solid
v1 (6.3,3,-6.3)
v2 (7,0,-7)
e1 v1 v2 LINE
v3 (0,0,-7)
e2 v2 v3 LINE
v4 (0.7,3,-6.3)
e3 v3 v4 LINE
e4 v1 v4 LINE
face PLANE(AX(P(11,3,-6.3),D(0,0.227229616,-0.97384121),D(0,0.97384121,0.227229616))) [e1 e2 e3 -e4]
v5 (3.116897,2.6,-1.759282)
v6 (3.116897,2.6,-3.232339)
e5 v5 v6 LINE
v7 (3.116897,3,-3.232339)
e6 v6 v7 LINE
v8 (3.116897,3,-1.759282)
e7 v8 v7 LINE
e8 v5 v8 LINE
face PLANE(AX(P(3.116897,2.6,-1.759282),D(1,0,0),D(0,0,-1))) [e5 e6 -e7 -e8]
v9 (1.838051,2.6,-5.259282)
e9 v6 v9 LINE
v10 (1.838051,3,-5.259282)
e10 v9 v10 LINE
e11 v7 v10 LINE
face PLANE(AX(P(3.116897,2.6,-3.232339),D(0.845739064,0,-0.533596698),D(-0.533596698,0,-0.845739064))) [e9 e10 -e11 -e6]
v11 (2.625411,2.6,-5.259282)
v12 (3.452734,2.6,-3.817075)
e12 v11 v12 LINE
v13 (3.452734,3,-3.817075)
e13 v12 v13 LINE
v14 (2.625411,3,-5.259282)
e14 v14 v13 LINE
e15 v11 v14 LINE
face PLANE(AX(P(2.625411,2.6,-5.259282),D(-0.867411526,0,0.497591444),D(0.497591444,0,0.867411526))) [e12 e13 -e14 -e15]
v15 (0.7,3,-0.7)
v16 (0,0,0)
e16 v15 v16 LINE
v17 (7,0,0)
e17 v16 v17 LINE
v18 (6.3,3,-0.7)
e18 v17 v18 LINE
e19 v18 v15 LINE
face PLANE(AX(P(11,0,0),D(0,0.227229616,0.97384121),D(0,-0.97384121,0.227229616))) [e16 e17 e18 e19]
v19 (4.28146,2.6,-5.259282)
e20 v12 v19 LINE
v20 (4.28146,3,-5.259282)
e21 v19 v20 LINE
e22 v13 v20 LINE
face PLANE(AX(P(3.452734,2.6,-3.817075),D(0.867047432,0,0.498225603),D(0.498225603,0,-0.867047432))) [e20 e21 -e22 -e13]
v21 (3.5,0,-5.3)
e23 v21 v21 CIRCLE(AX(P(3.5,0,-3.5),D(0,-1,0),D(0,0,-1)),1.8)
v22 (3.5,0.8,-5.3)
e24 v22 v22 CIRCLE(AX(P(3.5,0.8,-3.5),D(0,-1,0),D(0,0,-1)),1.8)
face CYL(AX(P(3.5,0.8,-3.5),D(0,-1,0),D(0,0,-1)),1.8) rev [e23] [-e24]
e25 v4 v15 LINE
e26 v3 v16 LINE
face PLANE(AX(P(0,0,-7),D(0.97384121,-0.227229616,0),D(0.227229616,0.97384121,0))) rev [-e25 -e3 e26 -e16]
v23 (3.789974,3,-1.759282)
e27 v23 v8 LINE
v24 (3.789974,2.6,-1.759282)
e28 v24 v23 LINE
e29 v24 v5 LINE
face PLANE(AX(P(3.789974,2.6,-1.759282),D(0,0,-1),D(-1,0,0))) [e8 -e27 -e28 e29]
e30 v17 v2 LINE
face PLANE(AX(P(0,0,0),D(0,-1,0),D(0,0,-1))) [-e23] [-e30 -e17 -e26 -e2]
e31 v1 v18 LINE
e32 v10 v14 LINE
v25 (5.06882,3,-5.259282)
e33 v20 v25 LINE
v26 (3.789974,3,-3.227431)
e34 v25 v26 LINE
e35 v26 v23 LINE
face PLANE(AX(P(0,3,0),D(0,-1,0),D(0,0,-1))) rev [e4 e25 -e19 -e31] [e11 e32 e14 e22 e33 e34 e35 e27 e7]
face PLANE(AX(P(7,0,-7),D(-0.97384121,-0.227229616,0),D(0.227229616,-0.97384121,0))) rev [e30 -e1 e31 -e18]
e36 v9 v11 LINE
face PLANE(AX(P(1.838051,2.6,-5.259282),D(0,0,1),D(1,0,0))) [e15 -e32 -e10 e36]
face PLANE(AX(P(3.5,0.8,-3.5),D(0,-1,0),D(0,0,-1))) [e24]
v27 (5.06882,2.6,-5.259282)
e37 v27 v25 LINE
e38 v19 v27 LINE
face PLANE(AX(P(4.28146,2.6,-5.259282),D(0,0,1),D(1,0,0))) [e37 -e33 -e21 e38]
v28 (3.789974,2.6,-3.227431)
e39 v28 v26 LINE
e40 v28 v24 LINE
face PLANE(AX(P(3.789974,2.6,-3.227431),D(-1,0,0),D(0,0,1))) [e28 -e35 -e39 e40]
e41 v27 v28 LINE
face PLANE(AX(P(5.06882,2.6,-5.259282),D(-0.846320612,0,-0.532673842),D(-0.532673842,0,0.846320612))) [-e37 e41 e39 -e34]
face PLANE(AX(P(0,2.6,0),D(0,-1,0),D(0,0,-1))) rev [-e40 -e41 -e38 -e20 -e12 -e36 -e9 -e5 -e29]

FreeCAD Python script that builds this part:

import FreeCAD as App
import Part
import Sketcher
from FreeCAD import Vector

doc = App.newDocument("Part")
params = doc.addObject("Spreadsheet::Sheet", "Params")
for row, (alias, value) in enumerate([
    ("sketch1_width", "7 mm"),
    ("pad1_length", "3 mm"),
    ("sketch2_height", "3 mm"),
    ("sketch2_width", "0.7 mm"),
    ("pocket1_length", "7 mm"),
    ("sketch3_width", "3 mm"),
    ("sketch3_height", "0.7 mm"),
    ("pocket2_length", "11 mm"),
    ("sketch4_diameter", "3.6 mm"),
    ("pocket3_length", "0.8 mm"),
    ("pocket4_length", "0.4 mm"),
], start=1):
    params.set(f"A{row}", alias)
    params.set(f"B{row}", "=" + value)
    params.setAlias(f"B{row}", alias)

body = doc.addObject("PartDesign::Body", "Body")

# Sketch on XZ plane
sketch1 = body.newObject("Sketcher::SketchObject", "Sketch")
sketch1.AttachmentSupport = (doc.getObject("XZ_Plane"), [""])
sketch1.MapMode = "FlatFace"
sketch1.addGeometry([
    Part.LineSegment(Vector(0, -7, 0), Vector(0, 0, 0)),
    Part.LineSegment(Vector(0, 0, 0), Vector(7, 0, 0)),
    Part.LineSegment(Vector(7, 0, 0), Vector(7, -7, 0)),
    Part.LineSegment(Vector(7, -7, 0), Vector(0, -7, 0)),
], False)
sketch1.addConstraint([
    Sketcher.Constraint("Coincident", 0, 2, 1, 1),
    Sketcher.Constraint("Coincident", 1, 2, 2, 1),
    Sketcher.Constraint("Coincident", 2, 2, 3, 1),
    Sketcher.Constraint("Coincident", 3, 2, 0, 1),
    Sketcher.Constraint("Vertical", 0),
    Sketcher.Constraint("Horizontal", 1),
    Sketcher.Constraint("Vertical", 2),
    Sketcher.Constraint("Horizontal", 3),
    Sketcher.Constraint("Coincident", 0, 2, -1, 1),
    Sketcher.Constraint("Equal", 3, 0),
    Sketcher.Constraint("DistanceX", 1, 1, 1, 2, 7.0),
])
sketch1.setExpression("Constraints[10]", "Params.sketch1_width")
pad1 = body.newObject("PartDesign::Pad", "Pad")
pad1.Profile = sketch1
pad1.setExpression("Length", "Params.pad1_length")
pad1.Reversed = True

# Sketch on XY plane
sketch2 = body.newObject("Sketcher::SketchObject", "Sketch001")
sketch2.AttachmentSupport = (doc.getObject("XY_Plane"), [""])
sketch2.MapMode = "FlatFace"
sketch2.addGeometry([
    Part.LineSegment(Vector(0, 0, 0), Vector(0.7, 3, 0)),  # 0
    Part.LineSegment(Vector(0.7, 3, 0), Vector(0, 3, 0)),  # 1
    Part.LineSegment(Vector(0, 3, 0), Vector(0, 0, 0)),  # 2
    Part.LineSegment(Vector(6.3, 3, 0), Vector(7, 0, 0)),  # 3
    Part.LineSegment(Vector(7, 0, 0), Vector(7, 3, 0)),  # 4
    Part.LineSegment(Vector(7, 3, 0), Vector(6.3, 3, 0)),  # 5
], False)
sketch2.addConstraint([
    Sketcher.Constraint("Coincident", 0, 2, 1, 1),
    Sketcher.Constraint("Coincident", 1, 2, 2, 1),
    Sketcher.Constraint("Coincident", 2, 2, 0, 1),
    Sketcher.Constraint("Coincident", 3, 2, 4, 1),
    Sketcher.Constraint("Coincident", 4, 2, 5, 1),
    Sketcher.Constraint("Coincident", 5, 2, 3, 1),
    Sketcher.Constraint("Horizontal", 1),
    Sketcher.Constraint("Vertical", 2),
    Sketcher.Constraint("Vertical", 4),
    Sketcher.Constraint("Horizontal", 5),
    Sketcher.Constraint("Coincident", 2, 2, -1, 1),
    Sketcher.Constraint("PointOnObject", 3, 2, -1),
    Sketcher.Constraint("Horizontal", 1, 2, 4, 2),
    Sketcher.Constraint("Equal", 1, 5),
    Sketcher.Constraint("DistanceY", 2, 2, 2, 1, 3.0),
    Sketcher.Constraint("DistanceX", 1, 2, 1, 1, 0.7),
    Sketcher.Constraint("DistanceX", -1, 1, 3, 2, 7.0),
])
sketch2.setExpression("Constraints[14]", "Params.sketch2_height")
sketch2.setExpression("Constraints[15]", "Params.sketch2_width")
pocket1 = body.newObject("PartDesign::Pocket", "Pocket")
pocket1.Profile = sketch2
pocket1.setExpression("Length", "Params.pocket1_length")

# Sketch on YZ plane
sketch3 = body.newObject("Sketcher::SketchObject", "Sketch002")
sketch3.AttachmentSupport = (doc.getObject("YZ_Plane"), [""])
sketch3.MapMode = "FlatFace"
sketch3.addGeometry([
    Part.LineSegment(Vector(0, 0, 0), Vector(3, -0.7, 0)),  # 0
    Part.LineSegment(Vector(3, -0.7, 0), Vector(3, 0, 0)),  # 1
    Part.LineSegment(Vector(3, 0, 0), Vector(0, 0, 0)),  # 2
    Part.LineSegment(Vector(3, -7, 0), Vector(3, -6.3, 0)),  # 3
    Part.LineSegment(Vector(3, -6.3, 0), Vector(0, -7, 0)),  # 4
    Part.LineSegment(Vector(0, -7, 0), Vector(3, -7, 0)),  # 5
], False)
sketch3.addConstraint([
    Sketcher.Constraint("Coincident", 0, 2, 1, 1),
    Sketcher.Constraint("Coincident", 1, 2, 2, 1),
    Sketcher.Constraint("Coincident", 2, 2, 0, 1),
    Sketcher.Constraint("Coincident", 3, 2, 4, 1),
    Sketcher.Constraint("Coincident", 4, 2, 5, 1),
    Sketcher.Constraint("Coincident", 5, 2, 3, 1),
    Sketcher.Constraint("Vertical", 1),
    Sketcher.Constraint("Horizontal", 2),
    Sketcher.Constraint("Vertical", 3),
    Sketcher.Constraint("Horizontal", 5),
    Sketcher.Constraint("Coincident", 2, 2, -1, 1),
    Sketcher.Constraint("PointOnObject", 4, 2, -2),
    Sketcher.Constraint("Vertical", 1, 2, 3, 2),
    Sketcher.Constraint("Equal", 1, 3),
    Sketcher.Constraint("DistanceX", 2, 2, 2, 1, 3.0),
    Sketcher.Constraint("DistanceY", 1, 1, 1, 2, 0.7),
    Sketcher.Constraint("DistanceY", 4, 2, -1, 1, 7.0),
])
sketch3.setExpression("Constraints[14]", "Params.sketch3_width")
sketch3.setExpression("Constraints[15]", "Params.sketch3_height")
pocket2 = body.newObject("PartDesign::Pocket", "Pocket001")
pocket2.Profile = sketch3
pocket2.setExpression("Length", "Params.pocket2_length")
pocket2.Reversed = True

# Sketch on XZ plane
sketch4 = body.newObject("Sketcher::SketchObject", "Sketch003")
sketch4.AttachmentSupport = (doc.getObject("XZ_Plane"), [""])
sketch4.MapMode = "FlatFace"
sketch4.addGeometry(Part.Circle(Vector(3.5, -3.5, 0), Vector(0, 0, 1), 1.8), False)
sketch4.addConstraint([
    Sketcher.Constraint("Diameter", 0, 3.6),
    Sketcher.Constraint("DistanceX", -1, 1, 0, 3, 3.5),
    Sketcher.Constraint("DistanceY", 0, 3, -1, 1, 3.5),
])
sketch4.setExpression("Constraints[0]", "Params.sketch4_diameter")
pocket3 = body.newObject("PartDesign::Pocket", "Pocket002")
pocket3.Profile = sketch4
pocket3.setExpression("Length", "Params.pocket3_length")

# Sketch on XZ plane
sketch5 = body.newObject("Sketcher::SketchObject", "Sketch004")
sketch5.AttachmentSupport = (doc.getObject("XZ_Plane"), [""])
sketch5.MapMode = "FlatFace"
sketch5.AttachmentOffset = App.Placement(Vector(0, 0, -3), App.Rotation())
sketch5.addGeometry([
    Part.LineSegment(Vector(3.116897, -3.232339, 0), Vector(3.116897, -1.759282, 0)),  # 0
    Part.LineSegment(Vector(3.116897, -1.759282, 0), Vector(3.789974, -1.759282, 0)),  # 1
    Part.LineSegment(Vector(3.789974, -1.759282, 0), Vector(3.789974, -3.227431, 0)),  # 2
    Part.LineSegment(Vector(3.789974, -3.227431, 0), Vector(5.06882, -5.259282, 0)),  # 3
    Part.LineSegment(Vector(5.06882, -5.259282, 0), Vector(4.28146, -5.259282, 0)),  # 4
    Part.LineSegment(Vector(4.28146, -5.259282, 0), Vector(3.452734, -3.817075, 0)),  # 5
    Part.LineSegment(Vector(3.452734, -3.817075, 0), Vector(2.625411, -5.259282, 0)),  # 6
    Part.LineSegment(Vector(2.625411, -5.259282, 0), Vector(1.838051, -5.259282, 0)),  # 7
    Part.LineSegment(Vector(1.838051, -5.259282, 0), Vector(3.116897, -3.232339, 0)),  # 8
], False)
sketch5.addConstraint([
    Sketcher.Constraint("Coincident", 0, 2, 1, 1),
    Sketcher.Constraint("Coincident", 1, 2, 2, 1),
    Sketcher.Constraint("Coincident", 2, 2, 3, 1),
    Sketcher.Constraint("Coincident", 3, 2, 4, 1),
    Sketcher.Constraint("Coincident", 4, 2, 5, 1),
    Sketcher.Constraint("Coincident", 5, 2, 6, 1),
    Sketcher.Constraint("Coincident", 6, 2, 7, 1),
    Sketcher.Constraint("Coincident", 7, 2, 8, 1),
    Sketcher.Constraint("Coincident", 8, 2, 0, 1),
    Sketcher.Constraint("Vertical", 0),
    Sketcher.Constraint("Horizontal", 1),
    Sketcher.Constraint("Vertical", 2),
    Sketcher.Constraint("Horizontal", 4),
    Sketcher.Constraint("Horizontal", 7),
    Sketcher.Constraint("Horizontal", 4, 2, 6, 2),
    Sketcher.Constraint("Equal", 4, 7),
    Sketcher.Constraint("DistanceY", 3, 2, 1, 2, 3.5),
    Sketcher.Constraint("DistanceX", 4, 2, 4, 1, 0.78736),
    Sketcher.Constraint("DistanceY", 2, 2, 2, 1, 1.468149),
    Sketcher.Constraint("DistanceX", 1, 1, 1, 2, 0.673077),
    Sketcher.Constraint("DistanceY", 0, 1, 0, 2, 1.473057),
    Sketcher.Constraint("DistanceY", 2, 2, -1, 1, 3.227431),
    Sketcher.Constraint("DistanceX", -1, 1, 3, 2, 5.06882),
    Sketcher.Constraint("DistanceX", -1, 1, 6, 2, 2.625411),
    Sketcher.Constraint("DistanceX", 5, 2, 2, 2, 0.33724),
    Sketcher.Constraint("Distance", 3, 2.400805),
    Sketcher.Constraint("Distance", 5, 1.663355),
])
pocket4 = body.newObject("PartDesign::Pocket", "Pocket003")
pocket4.Profile = sketch5
pocket4.setExpression("Length", "Params.pocket4_length")
pocket4.Reversed = True

doc.recompute()
